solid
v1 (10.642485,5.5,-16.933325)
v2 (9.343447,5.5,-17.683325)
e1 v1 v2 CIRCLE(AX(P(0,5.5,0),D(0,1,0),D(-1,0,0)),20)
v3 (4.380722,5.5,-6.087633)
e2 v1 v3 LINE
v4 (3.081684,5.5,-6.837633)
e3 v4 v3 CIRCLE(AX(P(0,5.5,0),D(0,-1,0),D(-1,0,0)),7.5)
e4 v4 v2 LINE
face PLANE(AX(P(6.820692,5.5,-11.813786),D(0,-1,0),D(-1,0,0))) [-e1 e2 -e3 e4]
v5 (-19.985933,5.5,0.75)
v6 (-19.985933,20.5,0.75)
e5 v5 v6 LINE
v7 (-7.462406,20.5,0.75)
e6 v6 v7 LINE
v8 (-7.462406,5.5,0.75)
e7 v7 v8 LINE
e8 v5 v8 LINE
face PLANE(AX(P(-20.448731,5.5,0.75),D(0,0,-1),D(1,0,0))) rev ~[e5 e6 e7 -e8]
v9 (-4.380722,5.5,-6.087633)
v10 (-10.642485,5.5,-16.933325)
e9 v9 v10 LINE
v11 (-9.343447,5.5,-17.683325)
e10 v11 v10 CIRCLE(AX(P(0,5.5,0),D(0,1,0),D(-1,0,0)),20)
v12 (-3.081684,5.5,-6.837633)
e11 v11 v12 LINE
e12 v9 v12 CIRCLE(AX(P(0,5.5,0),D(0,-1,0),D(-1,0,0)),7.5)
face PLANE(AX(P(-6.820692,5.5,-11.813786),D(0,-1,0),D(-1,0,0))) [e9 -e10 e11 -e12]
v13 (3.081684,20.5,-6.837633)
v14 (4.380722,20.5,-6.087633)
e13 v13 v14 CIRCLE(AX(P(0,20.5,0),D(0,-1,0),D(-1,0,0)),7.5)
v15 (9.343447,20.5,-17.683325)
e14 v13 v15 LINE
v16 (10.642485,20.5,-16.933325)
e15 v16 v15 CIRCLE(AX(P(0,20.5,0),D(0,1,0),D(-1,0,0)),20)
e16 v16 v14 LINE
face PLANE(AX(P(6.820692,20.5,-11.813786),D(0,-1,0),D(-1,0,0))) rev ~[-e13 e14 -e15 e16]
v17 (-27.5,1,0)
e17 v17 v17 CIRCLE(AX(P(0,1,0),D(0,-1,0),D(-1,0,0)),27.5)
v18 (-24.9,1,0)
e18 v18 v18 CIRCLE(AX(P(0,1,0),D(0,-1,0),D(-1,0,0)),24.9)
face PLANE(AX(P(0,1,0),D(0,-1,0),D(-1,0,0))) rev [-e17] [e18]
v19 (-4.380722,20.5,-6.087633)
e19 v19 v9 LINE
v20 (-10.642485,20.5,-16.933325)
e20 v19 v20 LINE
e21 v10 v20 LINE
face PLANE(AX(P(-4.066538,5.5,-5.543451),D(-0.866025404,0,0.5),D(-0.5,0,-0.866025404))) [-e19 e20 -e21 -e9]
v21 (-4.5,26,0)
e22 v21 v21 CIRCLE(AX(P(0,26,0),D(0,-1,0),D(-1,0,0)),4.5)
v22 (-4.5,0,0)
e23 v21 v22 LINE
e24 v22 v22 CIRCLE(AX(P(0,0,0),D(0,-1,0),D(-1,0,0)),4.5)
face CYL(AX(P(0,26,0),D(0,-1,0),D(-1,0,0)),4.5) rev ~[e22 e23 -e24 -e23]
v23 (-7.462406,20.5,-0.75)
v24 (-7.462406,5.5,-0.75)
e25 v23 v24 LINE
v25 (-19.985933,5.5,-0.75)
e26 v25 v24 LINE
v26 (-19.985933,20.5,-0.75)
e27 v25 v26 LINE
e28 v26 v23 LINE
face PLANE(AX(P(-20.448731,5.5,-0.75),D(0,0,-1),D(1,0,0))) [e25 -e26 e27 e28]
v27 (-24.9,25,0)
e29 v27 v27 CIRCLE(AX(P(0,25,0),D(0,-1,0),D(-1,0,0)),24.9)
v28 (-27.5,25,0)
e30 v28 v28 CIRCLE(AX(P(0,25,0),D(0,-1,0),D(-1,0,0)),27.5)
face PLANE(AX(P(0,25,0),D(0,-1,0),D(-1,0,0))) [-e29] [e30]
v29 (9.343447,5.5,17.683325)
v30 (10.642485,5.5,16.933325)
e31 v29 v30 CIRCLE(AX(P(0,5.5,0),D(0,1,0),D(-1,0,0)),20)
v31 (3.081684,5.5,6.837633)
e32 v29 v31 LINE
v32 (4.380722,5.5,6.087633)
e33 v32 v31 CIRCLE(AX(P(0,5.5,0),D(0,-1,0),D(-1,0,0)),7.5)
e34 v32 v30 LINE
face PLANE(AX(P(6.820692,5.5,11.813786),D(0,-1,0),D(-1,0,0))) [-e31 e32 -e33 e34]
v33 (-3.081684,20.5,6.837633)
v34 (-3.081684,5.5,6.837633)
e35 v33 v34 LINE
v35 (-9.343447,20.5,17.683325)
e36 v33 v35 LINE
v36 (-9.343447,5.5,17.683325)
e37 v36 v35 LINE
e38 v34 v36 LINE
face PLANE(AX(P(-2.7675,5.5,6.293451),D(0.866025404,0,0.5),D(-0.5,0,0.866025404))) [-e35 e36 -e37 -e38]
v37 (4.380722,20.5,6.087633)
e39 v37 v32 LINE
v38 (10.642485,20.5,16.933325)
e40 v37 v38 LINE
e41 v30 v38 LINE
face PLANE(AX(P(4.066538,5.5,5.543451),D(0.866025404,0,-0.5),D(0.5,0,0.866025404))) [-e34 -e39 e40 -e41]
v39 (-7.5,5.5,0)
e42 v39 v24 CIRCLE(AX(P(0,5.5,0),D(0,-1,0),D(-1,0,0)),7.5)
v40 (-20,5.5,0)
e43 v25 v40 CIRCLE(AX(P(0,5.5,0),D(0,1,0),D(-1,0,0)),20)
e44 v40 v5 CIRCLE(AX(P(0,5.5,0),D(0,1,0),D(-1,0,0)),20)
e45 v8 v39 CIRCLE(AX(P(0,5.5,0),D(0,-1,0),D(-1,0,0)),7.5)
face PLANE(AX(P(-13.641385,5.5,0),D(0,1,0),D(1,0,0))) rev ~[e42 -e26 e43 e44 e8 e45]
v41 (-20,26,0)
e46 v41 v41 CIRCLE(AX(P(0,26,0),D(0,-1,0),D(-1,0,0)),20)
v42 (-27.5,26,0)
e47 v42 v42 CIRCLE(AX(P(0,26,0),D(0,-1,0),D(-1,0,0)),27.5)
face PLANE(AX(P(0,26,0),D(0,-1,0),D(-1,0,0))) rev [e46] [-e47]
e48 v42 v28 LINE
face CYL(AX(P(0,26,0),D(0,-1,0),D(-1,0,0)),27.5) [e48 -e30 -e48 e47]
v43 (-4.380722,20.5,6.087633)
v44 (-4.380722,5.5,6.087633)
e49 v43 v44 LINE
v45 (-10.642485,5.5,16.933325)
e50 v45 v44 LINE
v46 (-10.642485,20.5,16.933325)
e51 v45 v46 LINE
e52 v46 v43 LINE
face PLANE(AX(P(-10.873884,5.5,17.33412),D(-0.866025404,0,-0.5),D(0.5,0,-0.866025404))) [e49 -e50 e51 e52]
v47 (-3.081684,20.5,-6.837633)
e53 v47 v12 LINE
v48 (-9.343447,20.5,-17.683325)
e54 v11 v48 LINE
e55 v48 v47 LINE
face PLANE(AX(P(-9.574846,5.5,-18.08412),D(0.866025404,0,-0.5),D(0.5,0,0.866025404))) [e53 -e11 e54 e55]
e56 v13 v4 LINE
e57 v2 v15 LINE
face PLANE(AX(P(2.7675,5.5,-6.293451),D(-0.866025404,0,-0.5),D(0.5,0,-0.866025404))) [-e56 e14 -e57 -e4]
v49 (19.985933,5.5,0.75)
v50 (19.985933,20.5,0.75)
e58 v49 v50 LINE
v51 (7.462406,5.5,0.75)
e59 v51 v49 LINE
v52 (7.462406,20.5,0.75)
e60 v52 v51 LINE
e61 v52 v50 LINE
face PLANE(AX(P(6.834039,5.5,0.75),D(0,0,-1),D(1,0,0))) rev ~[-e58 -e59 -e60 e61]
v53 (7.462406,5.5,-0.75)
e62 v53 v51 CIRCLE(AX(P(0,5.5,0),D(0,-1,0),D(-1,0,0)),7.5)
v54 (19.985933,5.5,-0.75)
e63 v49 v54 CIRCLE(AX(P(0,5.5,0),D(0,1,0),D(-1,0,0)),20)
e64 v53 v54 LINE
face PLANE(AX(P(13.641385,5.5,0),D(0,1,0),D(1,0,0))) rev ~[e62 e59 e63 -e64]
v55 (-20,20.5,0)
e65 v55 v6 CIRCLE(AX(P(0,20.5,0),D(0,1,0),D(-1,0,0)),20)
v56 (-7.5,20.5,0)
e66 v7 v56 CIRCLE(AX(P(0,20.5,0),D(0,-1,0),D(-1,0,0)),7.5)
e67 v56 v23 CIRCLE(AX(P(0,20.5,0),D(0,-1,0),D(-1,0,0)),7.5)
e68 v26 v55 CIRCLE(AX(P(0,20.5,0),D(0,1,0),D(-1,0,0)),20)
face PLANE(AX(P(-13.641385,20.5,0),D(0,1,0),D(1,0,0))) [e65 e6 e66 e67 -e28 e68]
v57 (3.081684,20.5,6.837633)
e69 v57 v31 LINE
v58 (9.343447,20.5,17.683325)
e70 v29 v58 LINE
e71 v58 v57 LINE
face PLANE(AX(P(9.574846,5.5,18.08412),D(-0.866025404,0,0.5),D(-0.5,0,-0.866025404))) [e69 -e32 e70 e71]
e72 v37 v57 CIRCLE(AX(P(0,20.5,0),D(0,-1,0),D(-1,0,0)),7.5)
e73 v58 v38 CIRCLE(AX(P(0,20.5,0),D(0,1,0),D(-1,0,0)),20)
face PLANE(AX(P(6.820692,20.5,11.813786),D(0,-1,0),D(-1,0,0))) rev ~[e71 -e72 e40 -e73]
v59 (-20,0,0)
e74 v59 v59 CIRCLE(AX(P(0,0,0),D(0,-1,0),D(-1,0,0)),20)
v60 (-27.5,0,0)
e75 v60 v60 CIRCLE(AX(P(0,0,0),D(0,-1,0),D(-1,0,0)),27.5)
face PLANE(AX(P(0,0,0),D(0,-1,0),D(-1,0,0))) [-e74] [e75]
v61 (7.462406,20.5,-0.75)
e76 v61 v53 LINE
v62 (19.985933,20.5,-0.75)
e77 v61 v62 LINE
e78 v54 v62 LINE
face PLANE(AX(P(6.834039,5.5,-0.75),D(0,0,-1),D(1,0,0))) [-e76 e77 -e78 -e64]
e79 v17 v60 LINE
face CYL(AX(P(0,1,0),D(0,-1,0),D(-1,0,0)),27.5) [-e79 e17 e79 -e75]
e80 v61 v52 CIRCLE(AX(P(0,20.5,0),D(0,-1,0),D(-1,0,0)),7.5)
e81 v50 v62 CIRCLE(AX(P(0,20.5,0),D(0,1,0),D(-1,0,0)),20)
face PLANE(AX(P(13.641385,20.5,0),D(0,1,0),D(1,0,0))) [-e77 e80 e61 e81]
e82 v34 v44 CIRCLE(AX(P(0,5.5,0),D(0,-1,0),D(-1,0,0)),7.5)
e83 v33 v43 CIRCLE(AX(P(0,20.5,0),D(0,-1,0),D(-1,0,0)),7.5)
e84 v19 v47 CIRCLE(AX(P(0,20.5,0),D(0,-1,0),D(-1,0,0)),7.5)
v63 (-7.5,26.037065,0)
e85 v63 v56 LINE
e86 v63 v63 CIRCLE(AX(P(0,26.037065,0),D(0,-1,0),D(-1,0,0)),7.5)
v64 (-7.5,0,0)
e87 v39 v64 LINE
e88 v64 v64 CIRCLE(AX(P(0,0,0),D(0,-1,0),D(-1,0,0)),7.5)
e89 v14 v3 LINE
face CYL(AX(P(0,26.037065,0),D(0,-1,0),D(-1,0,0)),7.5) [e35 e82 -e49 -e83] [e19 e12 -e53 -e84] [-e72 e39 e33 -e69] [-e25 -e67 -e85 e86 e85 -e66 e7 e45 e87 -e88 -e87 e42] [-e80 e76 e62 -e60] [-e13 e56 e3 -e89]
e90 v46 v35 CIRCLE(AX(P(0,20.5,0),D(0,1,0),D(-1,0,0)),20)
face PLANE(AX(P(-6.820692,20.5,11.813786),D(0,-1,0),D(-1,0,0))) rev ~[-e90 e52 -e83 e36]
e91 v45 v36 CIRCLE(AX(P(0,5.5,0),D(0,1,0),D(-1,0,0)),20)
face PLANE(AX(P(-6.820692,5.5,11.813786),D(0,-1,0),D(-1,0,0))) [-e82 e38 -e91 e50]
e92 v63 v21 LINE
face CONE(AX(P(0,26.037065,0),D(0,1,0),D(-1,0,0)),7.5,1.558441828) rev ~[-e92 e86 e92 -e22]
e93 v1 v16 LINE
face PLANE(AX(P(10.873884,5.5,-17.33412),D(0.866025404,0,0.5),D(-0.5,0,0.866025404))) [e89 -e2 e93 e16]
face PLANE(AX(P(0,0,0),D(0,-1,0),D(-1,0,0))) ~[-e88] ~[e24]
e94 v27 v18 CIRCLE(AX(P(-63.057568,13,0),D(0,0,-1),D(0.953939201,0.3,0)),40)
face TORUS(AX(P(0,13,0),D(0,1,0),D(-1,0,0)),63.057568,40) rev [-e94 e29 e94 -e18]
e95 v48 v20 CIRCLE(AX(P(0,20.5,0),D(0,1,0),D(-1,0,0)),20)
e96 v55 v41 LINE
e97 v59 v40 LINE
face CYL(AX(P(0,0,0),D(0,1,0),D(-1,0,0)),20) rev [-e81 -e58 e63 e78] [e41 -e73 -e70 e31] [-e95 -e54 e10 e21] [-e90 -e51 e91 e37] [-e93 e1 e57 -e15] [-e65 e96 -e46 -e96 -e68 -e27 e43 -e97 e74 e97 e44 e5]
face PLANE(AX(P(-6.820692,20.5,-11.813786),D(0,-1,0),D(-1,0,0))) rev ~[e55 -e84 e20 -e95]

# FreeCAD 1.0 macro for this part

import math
import FreeCAD as App
import Part
import Sketcher
Q = App.Units.Quantity


def add_polygon(sketch, points):
    """Adds a closed chain of lines whose ends are joined by coincident constraints."""
    first, n = sketch.GeometryCount, len(points)
    for a, b in zip(points, points[1:] + points[:1]):
        sketch.addGeometry(Part.LineSegment(App.Vector(*a, 0), App.Vector(*b, 0)), False)
    for i in range(n):
        sketch.addConstraint(Sketcher.Constraint("Coincident", first + i, 2, first + (i + 1) % n, 1))

doc = App.newDocument("Part")
body = doc.addObject("PartDesign::Body", "Body")
body.AllowCompound = True

# Sketch on XY plane
sketch1 = doc.addObject("Sketcher::SketchObject", "Sketch")
body.addObject(sketch1)
sketch1.AttachmentSupport = (doc.XY_Plane, [""])
sketch1.MapMode = "FlatFace"
sketch1.addGeometry(Part.LineSegment(App.Vector(-20, 26, 0), App.Vector(-27.5, 26, 0)), False)  # 0
sketch1.addGeometry(Part.LineSegment(App.Vector(-27.5, 26, 0), App.Vector(-27.5, 25, 0)), False)  # 1
sketch1.addGeometry(Part.LineSegment(App.Vector(-27.5, 25, 0), App.Vector(-24.9, 25, 0)), False)  # 2
sketch1.addGeometry(Part.ArcOfCircle(Part.Circle(App.Vector(-63.057568, 13, 0), App.Vector(0, 0, 1), 40), math.radians(-17.457603), math.radians(17.457603)), False)  # 3
sketch1.addGeometry(Part.LineSegment(App.Vector(-24.9, 1, 0), App.Vector(-27.5, 1, 0)), False)  # 4
sketch1.addGeometry(Part.LineSegment(App.Vector(-27.5, 1, 0), App.Vector(-27.5, 0, 0)), False)  # 5
sketch1.addGeometry(Part.LineSegment(App.Vector(-27.5, 0, 0), App.Vector(-20, 0, 0)), False)  # 6
sketch1.addGeometry(Part.LineSegment(App.Vector(-20, 0, 0), App.Vector(-20, 26, 0)), False)  # 7
add_polygon(sketch1, [(-4.5, 0), (-4.5, 26), (-7.5, 26.037065), (-7.5, 0)])  # lines 8-11
sketch1.addConstraint([
    Sketcher.Constraint("Coincident", 0, 2, 1, 1),
    Sketcher.Constraint("Coincident", 1, 2, 2, 1),
    Sketcher.Constraint("Coincident", 2, 2, 3, 2),
    Sketcher.Constraint("Coincident", 3, 1, 4, 1),
    Sketcher.Constraint("Coincident", 4, 2, 5, 1),
    Sketcher.Constraint("Coincident", 5, 2, 6, 1),
    Sketcher.Constraint("Coincident", 6, 2, 7, 1),
    Sketcher.Constraint("Coincident", 7, 2, 0, 1),
    Sketcher.Constraint("Horizontal", 0),
    Sketcher.Constraint("Vertical", 1),
    Sketcher.Constraint("Horizontal", 2),
    Sketcher.Constraint("Horizontal", 4),
    Sketcher.Constraint("Vertical", 5),
    Sketcher.Constraint("Horizontal", 6),
    Sketcher.Constraint("Vertical", 7),
    Sketcher.Constraint("Vertical", 8),
    Sketcher.Constraint("Vertical", 10),
    Sketcher.Constraint("Horizontal", 11),
    Sketcher.Constraint("PointOnObject", 5, 2, -1),
    Sketcher.Constraint("PointOnObject", 10, 2, -1),
    Sketcher.Constraint("Horizontal", 7, 2, 8, 2),
    Sketcher.Constraint("Vertical", 2, 2, 3, 1),
    Sketcher.Constraint("Vertical", 1, 2, 4, 2),
    Sketcher.Constraint("Equal", 1, 5),
    Sketcher.Constraint("Radius", 3, 40.0),
    Sketcher.Constraint("DistanceX", 11, 1, 11, 2, 3.0),
    Sketcher.Constraint("DistanceY", 1, 2, 1, 1, 1.0),
    Sketcher.Constraint("DistanceY", 7, 1, 7, 2, 26.0),
    Sketcher.Constraint("DistanceX", 0, 2, 0, 1, 7.5),
    Sketcher.Constraint("DistanceX", 2, 1, 2, 2, 2.6),
    Sketcher.Constraint("DistanceX", 6, 2, -1, 1, 20.0),
    Sketcher.Constraint("DistanceX", 0, 2, 8, 2, 23.0),
    Sketcher.Constraint("Distance", 9, 3.000229),
])
revolution = doc.addObject("PartDesign::Revolution", "Revolution")
body.addObject(revolution)
revolution.Profile = sketch1
revolution.ReferenceAxis = (sketch1, ["V_Axis"])
revolution.Angle = 360

# Sketch on XZ plane
sketch2 = doc.addObject("Sketcher::SketchObject", "Sketch001")
body.addObject(sketch2)
sketch2.AttachmentSupport = (doc.XZ_Plane, [""])
sketch2.MapMode = "FlatFace"
sketch2.AttachmentOffset = App.Placement(App.Vector(0, 0, -5.5), App.Rotation())
add_polygon(sketch2, [(6.834039, -0.75), (6.834039, 0.75), (20.448731, 0.75), (20.448731, -0.75)])  # lines 0-3
add_polygon(sketch2, [(10.873884, 17.33412), (4.066538, 5.543451), (2.7675, 6.293451), (9.574846, 18.08412)])  # lines 4-7
add_polygon(sketch2, [(-9.574846, 18.08412), (-2.7675, 6.293451), (-4.066538, 5.543451), (-10.873884, 17.33412)])  # lines 8-11
add_polygon(sketch2, [(-20.448731, -0.75), (-20.448731, 0.75), (-6.834039, 0.75), (-6.834039, -0.75)])  # lines 12-15
add_polygon(sketch2, [(-10.873884, -17.33412), (-4.066538, -5.543451), (-2.7675, -6.293451), (-9.574846, -18.08412)])  # lines 16-19
add_polygon(sketch2, [(9.574846, -18.08412), (2.7675, -6.293451), (4.066538, -5.543451), (10.873884, -17.33412)])  # lines 20-23
sketch2.addConstraint([
    Sketcher.Constraint("Vertical", 0),
    Sketcher.Constraint("Horizontal", 1),
    Sketcher.Constraint("Vertical", 2),
    Sketcher.Constraint("Horizontal", 3),
    Sketcher.Constraint("Vertical", 12),
    Sketcher.Constraint("Horizontal", 13),
    Sketcher.Constraint("Vertical", 14),
    Sketcher.Constraint("Horizontal", 15),
    Sketcher.Constraint("Symmetric", 2, 2, 12, 2, -1, 1),
    Sketcher.Constraint("Symmetric", 0, 2, 14, 2, -1, 1),
    Sketcher.Constraint("Symmetric", 4, 2, 16, 2, -1, 1),
    Sketcher.Constraint("Symmetric", 5, 2, 17, 2, -1, 1),
    Sketcher.Constraint("Symmetric", 6, 2, 18, 2, -1, 1),
    Sketcher.Constraint("Symmetric", 7, 2, 19, 2, -1, 1),
    Sketcher.Constraint("Symmetric", 8, 2, 20, 2, -1, 1),
    Sketcher.Constraint("Symmetric", 9, 2, 21, 2, -1, 1),
    Sketcher.Constraint("Symmetric", 10, 2, 22, 2, -1, 1),
    Sketcher.Constraint("Symmetric", 11, 2, 23, 2, -1, 1),
    Sketcher.Constraint("Symmetric", 5, 2, 8, 2, -2),
    Sketcher.Constraint("Symmetric", 4, 2, 9, 2, -2),
    Sketcher.Constraint("Symmetric", 7, 2, 10, 2, -2),
    Sketcher.Constraint("Symmetric", 6, 2, 11, 2, -2),
    Sketcher.Constraint("Perpendicular", 4, 5),
    Sketcher.Constraint("Perpendicular", 5, 6),
    Sketcher.Constraint("Perpendicular", 6, 7),
    Sketcher.Constraint("Horizontal", 1, 2, 12, 2),
    Sketcher.Constraint("Angle", 4, Q("-120 deg")),
    Sketcher.Constraint("DistanceY", 0, 1, 0, 2, 1.5),
    Sketcher.Constraint("Distance", 5, 1.5),
    Sketcher.Constraint("DistanceX", 8, 2, 5, 2, 5.535001),
    Sketcher.Constraint("DistanceX", 1, 1, 1, 2, 13.614692),
    Sketcher.Constraint("DistanceX", 4, 2, 0, 2, 2.7675),
    Sketcher.Constraint("Distance", 4, 13.614692),
    Sketcher.Constraint("DistanceY", -1, 1, 4, 2, 5.543451),
])
pad1 = doc.addObject("PartDesign::Pad", "Pad")
body.addObject(pad1)
pad1.Profile = sketch2
pad1.Length = 15
pad1.Reversed = True

doc.recompute()
